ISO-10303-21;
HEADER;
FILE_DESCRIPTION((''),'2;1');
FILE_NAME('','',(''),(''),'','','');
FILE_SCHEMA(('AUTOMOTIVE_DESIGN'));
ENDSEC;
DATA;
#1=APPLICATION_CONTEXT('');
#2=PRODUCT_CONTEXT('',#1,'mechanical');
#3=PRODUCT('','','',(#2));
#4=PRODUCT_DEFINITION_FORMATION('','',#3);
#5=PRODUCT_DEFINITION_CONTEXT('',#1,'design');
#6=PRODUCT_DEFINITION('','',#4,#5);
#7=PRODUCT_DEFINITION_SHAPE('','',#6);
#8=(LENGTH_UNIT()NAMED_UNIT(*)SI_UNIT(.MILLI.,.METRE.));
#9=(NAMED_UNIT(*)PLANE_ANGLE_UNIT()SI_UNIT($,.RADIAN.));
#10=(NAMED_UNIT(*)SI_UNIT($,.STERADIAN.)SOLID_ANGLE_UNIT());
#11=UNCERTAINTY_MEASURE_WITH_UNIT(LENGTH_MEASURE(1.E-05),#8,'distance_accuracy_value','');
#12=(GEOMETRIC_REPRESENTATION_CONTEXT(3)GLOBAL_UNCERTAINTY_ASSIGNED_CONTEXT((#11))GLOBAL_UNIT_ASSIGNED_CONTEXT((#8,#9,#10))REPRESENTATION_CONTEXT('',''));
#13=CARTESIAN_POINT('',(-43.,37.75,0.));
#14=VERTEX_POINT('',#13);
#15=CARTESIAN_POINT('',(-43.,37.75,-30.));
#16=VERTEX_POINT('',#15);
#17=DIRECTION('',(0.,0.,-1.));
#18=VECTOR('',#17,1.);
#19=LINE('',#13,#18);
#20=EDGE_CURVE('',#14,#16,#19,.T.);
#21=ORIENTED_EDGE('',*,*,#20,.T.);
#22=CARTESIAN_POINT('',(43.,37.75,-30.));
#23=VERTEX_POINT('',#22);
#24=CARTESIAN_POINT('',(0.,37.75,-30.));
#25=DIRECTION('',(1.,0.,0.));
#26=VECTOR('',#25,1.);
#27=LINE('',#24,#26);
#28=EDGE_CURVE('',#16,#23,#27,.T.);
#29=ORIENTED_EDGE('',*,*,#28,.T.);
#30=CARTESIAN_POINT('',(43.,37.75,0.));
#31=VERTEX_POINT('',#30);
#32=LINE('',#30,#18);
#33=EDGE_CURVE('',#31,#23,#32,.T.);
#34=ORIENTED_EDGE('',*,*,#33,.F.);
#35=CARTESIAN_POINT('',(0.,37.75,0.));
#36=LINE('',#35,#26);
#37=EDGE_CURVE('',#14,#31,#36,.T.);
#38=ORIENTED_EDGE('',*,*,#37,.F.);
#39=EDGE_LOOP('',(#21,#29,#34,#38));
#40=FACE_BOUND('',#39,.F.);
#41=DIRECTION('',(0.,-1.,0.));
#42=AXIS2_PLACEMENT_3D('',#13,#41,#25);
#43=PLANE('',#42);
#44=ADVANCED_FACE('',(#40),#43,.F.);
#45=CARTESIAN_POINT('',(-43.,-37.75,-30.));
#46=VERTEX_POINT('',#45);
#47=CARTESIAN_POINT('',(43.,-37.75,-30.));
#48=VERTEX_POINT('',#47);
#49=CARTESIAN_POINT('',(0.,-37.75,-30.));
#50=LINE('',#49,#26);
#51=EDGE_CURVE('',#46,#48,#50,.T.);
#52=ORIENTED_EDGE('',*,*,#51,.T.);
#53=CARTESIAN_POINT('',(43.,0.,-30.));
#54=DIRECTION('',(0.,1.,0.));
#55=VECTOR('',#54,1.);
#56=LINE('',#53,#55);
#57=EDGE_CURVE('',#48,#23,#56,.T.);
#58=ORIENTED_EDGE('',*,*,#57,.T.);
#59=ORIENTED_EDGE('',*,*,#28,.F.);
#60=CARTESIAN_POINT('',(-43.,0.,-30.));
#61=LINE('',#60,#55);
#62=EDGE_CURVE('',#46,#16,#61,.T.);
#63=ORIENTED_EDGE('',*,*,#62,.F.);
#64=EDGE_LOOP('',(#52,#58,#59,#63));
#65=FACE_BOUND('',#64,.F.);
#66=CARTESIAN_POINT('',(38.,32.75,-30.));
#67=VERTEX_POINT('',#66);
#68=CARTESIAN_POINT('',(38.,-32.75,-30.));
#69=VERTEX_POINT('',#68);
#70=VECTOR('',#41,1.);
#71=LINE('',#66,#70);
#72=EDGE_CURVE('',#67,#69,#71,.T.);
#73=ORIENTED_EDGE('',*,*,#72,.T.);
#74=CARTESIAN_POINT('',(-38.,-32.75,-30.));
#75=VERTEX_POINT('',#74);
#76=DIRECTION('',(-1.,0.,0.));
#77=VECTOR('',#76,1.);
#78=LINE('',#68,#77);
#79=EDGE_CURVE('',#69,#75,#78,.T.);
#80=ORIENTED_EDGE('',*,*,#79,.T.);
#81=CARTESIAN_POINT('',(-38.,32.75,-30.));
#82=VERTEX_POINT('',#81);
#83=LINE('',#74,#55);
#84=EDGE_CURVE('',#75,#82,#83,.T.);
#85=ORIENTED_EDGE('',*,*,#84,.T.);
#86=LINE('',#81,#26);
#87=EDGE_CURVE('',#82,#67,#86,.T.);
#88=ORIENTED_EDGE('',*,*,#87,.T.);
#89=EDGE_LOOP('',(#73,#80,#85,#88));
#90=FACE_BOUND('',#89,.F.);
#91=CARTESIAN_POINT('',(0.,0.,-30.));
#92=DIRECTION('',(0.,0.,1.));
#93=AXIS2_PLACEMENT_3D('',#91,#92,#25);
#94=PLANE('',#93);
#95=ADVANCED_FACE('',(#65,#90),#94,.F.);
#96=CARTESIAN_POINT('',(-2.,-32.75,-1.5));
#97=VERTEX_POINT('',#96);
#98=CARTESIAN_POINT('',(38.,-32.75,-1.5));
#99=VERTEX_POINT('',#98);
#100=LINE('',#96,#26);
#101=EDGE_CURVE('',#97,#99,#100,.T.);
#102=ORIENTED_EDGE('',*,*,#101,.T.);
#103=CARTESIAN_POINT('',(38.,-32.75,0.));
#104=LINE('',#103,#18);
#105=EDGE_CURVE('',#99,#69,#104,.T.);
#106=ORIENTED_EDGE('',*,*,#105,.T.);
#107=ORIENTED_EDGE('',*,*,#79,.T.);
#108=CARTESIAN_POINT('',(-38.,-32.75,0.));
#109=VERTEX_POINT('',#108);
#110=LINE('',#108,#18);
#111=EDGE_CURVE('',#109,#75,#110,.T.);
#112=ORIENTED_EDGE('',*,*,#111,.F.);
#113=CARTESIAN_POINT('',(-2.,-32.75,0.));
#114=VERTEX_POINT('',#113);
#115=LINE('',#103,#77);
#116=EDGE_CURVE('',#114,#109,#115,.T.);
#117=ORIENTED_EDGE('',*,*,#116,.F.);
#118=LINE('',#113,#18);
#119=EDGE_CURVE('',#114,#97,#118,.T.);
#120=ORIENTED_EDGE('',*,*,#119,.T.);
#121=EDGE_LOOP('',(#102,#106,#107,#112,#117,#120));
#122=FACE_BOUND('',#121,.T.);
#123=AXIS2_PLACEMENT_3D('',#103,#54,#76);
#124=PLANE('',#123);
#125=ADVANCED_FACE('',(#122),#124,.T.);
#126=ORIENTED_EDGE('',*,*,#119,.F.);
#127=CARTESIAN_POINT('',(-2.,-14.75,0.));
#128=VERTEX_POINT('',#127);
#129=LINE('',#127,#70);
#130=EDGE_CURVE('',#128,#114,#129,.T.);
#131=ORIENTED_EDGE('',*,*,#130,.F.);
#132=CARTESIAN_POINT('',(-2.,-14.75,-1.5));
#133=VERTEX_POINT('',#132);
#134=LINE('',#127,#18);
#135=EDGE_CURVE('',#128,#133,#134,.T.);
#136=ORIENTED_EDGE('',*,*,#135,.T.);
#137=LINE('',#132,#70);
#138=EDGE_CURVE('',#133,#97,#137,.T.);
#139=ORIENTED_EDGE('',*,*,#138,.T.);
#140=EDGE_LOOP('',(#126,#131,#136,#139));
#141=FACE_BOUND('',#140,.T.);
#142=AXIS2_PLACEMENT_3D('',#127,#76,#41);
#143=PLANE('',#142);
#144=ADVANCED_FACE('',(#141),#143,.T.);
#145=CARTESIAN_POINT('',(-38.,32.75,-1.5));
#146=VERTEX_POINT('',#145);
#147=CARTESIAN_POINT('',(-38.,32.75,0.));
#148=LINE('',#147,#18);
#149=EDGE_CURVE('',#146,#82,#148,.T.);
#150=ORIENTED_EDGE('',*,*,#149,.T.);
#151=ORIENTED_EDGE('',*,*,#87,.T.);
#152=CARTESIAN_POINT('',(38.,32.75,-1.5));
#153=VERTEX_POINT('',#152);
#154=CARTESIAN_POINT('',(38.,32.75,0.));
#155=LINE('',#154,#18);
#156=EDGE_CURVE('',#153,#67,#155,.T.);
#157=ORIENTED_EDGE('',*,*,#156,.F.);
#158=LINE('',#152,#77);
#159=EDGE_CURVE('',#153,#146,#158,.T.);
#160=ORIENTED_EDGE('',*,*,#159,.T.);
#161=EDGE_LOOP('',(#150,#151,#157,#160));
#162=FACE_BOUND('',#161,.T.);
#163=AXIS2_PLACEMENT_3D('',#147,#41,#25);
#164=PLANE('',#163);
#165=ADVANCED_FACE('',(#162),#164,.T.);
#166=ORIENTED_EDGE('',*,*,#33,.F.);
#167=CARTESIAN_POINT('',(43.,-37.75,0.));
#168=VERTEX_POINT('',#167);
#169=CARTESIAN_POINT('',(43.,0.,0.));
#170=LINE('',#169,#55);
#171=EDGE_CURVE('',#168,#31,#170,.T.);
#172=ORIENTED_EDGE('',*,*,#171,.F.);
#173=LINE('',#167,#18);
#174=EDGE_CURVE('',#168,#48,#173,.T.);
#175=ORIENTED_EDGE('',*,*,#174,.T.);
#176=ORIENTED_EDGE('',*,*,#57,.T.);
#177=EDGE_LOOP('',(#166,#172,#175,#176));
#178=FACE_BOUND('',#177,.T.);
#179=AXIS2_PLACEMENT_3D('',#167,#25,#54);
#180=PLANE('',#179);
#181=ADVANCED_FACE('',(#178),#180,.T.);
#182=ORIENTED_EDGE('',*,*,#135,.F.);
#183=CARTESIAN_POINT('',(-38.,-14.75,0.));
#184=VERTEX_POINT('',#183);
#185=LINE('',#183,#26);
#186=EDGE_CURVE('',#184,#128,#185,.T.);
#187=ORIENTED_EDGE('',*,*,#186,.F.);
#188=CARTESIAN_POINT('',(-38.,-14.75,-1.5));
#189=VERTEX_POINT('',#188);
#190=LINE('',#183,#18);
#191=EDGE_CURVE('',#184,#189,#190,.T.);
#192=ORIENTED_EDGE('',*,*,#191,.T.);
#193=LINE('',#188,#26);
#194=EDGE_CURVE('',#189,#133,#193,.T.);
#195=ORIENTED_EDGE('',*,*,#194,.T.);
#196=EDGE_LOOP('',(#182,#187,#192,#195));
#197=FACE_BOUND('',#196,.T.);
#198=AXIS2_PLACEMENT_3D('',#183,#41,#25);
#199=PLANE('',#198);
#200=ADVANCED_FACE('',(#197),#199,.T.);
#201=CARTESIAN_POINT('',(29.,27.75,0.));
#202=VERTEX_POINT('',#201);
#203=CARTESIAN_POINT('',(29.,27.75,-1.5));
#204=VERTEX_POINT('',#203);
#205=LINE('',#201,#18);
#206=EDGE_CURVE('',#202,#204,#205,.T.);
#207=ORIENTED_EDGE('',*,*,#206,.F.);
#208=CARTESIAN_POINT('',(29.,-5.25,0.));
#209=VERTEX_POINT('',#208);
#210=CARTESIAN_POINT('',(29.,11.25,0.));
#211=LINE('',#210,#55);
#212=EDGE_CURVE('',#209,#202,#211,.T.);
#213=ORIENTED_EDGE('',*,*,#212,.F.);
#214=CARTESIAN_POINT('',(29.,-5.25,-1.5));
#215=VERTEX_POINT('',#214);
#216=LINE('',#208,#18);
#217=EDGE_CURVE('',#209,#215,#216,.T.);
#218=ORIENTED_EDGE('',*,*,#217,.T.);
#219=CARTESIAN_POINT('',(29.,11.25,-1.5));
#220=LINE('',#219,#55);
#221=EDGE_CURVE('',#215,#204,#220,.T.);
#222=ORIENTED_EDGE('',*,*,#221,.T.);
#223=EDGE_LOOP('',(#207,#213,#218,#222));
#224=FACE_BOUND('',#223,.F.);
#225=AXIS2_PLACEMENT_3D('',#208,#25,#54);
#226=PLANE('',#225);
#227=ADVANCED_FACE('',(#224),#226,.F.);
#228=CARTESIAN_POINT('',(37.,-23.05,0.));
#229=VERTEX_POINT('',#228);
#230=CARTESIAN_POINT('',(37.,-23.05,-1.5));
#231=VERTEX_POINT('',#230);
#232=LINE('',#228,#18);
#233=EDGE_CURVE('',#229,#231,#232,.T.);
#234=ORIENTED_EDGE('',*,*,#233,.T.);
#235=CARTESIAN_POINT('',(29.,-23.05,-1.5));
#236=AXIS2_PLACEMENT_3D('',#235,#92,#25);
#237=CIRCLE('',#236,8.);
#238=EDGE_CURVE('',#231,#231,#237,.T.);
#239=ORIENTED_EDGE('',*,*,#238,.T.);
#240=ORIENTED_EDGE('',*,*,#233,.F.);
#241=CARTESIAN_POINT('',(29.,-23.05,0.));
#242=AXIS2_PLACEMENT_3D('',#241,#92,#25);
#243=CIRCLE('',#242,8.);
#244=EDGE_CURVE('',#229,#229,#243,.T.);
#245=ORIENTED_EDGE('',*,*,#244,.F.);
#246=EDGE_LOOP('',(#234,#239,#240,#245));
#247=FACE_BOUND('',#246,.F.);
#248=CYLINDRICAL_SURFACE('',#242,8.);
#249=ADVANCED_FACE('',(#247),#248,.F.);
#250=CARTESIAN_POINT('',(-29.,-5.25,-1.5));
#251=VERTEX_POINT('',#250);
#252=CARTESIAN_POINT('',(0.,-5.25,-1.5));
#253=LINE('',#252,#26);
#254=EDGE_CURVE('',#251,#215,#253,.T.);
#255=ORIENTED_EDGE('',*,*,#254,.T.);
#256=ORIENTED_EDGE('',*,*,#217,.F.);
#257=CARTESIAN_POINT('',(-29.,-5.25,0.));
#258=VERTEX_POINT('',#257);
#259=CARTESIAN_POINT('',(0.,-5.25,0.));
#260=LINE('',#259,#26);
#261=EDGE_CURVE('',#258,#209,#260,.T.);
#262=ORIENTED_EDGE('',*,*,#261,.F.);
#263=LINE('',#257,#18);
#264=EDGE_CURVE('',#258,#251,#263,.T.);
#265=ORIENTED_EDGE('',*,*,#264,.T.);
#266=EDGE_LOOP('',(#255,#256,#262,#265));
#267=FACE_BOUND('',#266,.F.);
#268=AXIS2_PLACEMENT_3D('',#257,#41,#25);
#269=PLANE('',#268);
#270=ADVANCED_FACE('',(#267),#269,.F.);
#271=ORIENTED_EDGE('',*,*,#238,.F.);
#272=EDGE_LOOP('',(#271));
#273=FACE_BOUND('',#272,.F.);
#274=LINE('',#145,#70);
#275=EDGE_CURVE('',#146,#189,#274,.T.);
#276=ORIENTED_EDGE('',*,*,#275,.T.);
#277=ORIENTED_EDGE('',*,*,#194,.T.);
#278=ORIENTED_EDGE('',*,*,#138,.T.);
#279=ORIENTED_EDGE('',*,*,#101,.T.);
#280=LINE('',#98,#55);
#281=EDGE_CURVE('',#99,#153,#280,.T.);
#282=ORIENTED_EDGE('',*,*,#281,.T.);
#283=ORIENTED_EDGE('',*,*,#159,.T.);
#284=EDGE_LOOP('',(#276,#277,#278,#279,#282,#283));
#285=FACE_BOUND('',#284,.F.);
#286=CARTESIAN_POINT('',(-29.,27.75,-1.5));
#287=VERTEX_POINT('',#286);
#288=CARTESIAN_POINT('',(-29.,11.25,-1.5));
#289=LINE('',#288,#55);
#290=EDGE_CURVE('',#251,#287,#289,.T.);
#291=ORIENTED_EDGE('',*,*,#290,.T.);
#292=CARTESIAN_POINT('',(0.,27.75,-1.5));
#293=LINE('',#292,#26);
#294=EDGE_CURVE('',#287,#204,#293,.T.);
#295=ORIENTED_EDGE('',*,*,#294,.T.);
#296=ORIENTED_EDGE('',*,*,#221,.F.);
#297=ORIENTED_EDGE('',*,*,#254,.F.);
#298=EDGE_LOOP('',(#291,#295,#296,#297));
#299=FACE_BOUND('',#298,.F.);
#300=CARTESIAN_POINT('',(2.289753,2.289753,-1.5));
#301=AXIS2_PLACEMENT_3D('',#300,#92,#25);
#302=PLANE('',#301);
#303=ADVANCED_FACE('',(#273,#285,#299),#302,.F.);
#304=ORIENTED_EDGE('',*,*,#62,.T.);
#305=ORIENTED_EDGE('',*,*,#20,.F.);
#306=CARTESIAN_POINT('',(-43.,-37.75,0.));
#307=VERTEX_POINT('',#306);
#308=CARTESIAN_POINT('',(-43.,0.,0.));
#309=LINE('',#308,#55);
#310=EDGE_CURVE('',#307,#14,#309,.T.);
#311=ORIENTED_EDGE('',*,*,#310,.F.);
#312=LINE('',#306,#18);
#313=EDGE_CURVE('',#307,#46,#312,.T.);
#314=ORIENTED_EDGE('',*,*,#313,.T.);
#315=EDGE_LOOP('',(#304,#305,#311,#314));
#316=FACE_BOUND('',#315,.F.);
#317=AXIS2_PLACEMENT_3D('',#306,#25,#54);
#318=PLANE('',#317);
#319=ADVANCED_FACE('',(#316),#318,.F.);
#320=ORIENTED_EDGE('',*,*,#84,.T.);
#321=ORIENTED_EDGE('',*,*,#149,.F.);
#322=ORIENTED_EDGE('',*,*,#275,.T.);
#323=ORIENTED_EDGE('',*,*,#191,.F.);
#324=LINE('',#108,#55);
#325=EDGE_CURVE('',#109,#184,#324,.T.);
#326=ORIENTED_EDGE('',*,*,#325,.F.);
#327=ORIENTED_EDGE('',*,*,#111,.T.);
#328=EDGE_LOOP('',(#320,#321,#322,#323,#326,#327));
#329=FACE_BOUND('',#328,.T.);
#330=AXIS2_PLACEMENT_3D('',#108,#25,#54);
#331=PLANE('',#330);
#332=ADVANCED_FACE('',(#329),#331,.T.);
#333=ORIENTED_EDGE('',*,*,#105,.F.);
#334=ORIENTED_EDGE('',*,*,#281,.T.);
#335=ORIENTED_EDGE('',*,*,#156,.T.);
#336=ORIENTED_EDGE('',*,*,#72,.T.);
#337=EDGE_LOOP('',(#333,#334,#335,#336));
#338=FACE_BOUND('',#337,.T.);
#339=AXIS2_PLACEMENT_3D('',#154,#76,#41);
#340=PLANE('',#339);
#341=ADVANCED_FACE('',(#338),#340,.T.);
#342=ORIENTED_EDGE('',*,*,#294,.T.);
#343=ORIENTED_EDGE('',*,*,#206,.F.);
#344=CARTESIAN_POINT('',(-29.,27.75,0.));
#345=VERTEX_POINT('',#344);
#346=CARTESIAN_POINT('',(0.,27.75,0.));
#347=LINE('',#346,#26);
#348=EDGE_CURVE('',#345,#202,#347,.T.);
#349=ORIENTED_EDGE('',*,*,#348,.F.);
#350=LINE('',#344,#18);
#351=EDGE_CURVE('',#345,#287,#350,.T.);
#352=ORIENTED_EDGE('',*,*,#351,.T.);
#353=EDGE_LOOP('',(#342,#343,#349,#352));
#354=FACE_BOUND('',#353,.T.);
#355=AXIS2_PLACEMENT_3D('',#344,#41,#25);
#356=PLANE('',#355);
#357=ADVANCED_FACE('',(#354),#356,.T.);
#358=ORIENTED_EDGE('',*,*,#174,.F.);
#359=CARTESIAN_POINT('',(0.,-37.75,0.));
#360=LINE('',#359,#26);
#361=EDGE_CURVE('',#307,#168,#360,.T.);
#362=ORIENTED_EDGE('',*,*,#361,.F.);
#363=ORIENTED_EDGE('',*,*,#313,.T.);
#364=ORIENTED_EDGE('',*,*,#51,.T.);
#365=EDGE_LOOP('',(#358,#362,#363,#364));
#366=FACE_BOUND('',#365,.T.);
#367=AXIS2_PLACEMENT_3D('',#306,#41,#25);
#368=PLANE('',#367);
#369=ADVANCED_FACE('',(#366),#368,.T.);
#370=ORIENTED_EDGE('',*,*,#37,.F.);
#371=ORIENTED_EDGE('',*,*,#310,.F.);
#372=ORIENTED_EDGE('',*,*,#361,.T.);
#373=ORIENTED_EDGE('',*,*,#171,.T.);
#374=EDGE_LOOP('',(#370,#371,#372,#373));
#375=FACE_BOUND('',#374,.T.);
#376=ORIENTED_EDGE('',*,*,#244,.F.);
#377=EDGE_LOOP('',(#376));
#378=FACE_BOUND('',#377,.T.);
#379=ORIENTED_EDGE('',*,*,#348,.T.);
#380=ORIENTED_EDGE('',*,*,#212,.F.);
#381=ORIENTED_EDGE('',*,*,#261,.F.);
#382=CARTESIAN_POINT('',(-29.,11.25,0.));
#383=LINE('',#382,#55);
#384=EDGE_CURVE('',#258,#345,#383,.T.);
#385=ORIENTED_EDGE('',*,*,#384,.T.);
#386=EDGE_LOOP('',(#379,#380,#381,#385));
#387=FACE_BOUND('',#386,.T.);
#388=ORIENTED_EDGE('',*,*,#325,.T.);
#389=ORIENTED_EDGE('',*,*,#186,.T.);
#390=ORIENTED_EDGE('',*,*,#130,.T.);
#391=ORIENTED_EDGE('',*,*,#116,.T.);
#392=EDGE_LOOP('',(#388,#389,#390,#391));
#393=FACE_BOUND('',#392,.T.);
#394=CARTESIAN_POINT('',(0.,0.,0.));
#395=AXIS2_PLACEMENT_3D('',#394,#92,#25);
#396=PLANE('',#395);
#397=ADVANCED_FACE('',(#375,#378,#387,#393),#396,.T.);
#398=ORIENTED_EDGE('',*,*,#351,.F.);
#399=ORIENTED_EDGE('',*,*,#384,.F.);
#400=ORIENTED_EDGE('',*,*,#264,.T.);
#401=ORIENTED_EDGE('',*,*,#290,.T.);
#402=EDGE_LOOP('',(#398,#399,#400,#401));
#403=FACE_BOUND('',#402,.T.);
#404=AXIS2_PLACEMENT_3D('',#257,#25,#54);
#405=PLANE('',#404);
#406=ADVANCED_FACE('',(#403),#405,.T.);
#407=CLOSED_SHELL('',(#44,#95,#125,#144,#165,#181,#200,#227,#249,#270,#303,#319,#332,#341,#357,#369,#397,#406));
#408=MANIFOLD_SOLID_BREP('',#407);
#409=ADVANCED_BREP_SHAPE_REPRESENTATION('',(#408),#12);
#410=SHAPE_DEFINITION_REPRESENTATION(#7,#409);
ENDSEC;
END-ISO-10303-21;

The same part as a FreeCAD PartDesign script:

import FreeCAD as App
import Part
import Sketcher

V = App.Vector
Q = App.Units.Quantity

doc = App.newDocument("Part")
params = doc.addObject("Spreadsheet::Sheet", "Params")
for row, (alias, value) in enumerate([
    ("sketch1_diameter", "16 mm"),
    ("sketch1_width", "36 mm"),
    ("sketch1_width2", "40 mm"),
    ("sketch1_width3", "58 mm"),
    ("sketch1_height", "18 mm"),
    ("pad1_length", "1.5 mm"),
    ("sketch2_width", "86 mm"),
    ("sketch2_width2", "76 mm"),
    ("sketch2_height", "75.5 mm"),
    ("sketch2_height2", "65.5 mm"),
    ("pad2_length", "30 mm"),
], start=1):
    params.set(f"A{row}", alias)
    params.set(f"B{row}", "=" + value)
    params.setAlias(f"B{row}", alias)

body = doc.addObject("PartDesign::Body", "Body")

sketch1 = body.newObject("Sketcher::SketchObject", "Sketch")
sketch1.AttachmentSupport = (doc.getObject("XY_Plane"), [""])
sketch1.MapMode = "FlatFace"
sketch1.addGeometry([
    Part.LineSegment(V(-38, 32.75, 0), V(-38, -14.75, 0)),
    Part.LineSegment(V(-38, -14.75, 0), V(-2, -14.75, 0)),
    Part.LineSegment(V(-2, -14.75, 0), V(-2, -32.75, 0)),
    Part.LineSegment(V(-2, -32.75, 0), V(38, -32.75, 0)),
    Part.LineSegment(V(38, -32.75, 0), V(38, 32.75, 0)),
    Part.LineSegment(V(38, 32.75, 0), V(-38, 32.75, 0)),
    Part.Circle(V(29, -23.05, 0), V(0, 0, 1), 8),
    Part.LineSegment(V(29, -5.25, 0), V(-29, -5.25, 0)),
    Part.LineSegment(V(-29, -5.25, 0), V(-29, 27.75, 0)),
    Part.LineSegment(V(-29, 27.75, 0), V(29, 27.75, 0)),
    Part.LineSegment(V(29, 27.75, 0), V(29, -5.25, 0)),
], False)
sketch1.addConstraint([
    Sketcher.Constraint("Coincident", 0, 2, 1, 1),
    Sketcher.Constraint("Coincident", 1, 2, 2, 1),
    Sketcher.Constraint("Coincident", 2, 2, 3, 1),
    Sketcher.Constraint("Coincident", 3, 2, 4, 1),
    Sketcher.Constraint("Coincident", 4, 2, 5, 1),
    Sketcher.Constraint("Coincident", 5, 2, 0, 1),
    Sketcher.Constraint("Coincident", 7, 2, 8, 1),
    Sketcher.Constraint("Coincident", 8, 2, 9, 1),
    Sketcher.Constraint("Coincident", 9, 2, 10, 1),
    Sketcher.Constraint("Coincident", 10, 2, 7, 1),
    Sketcher.Constraint("Vertical", 0),
    Sketcher.Constraint("Horizontal", 1),
    Sketcher.Constraint("Vertical", 2),
    Sketcher.Constraint("Horizontal", 3),
    Sketcher.Constraint("Vertical", 4),
    Sketcher.Constraint("Horizontal", 5),
    Sketcher.Constraint("Horizontal", 7),
    Sketcher.Constraint("Vertical", 8),
    Sketcher.Constraint("Horizontal", 9),
    Sketcher.Constraint("Vertical", 10),
    Sketcher.Constraint("Symmetric", 3, 2, 5, 2, -1, 1),
    Sketcher.Constraint("Vertical", 6, 3, 9, 2),
    Sketcher.Constraint("Diameter", 6, Q("16 mm")),
    Sketcher.Constraint("DistanceX", 1, 1, 1, 2, Q("36 mm")),
    Sketcher.Constraint("DistanceX", 3, 1, 3, 2, Q("40 mm")),
    Sketcher.Constraint("DistanceX", 7, 2, 7, 1, Q("58 mm")),
    Sketcher.Constraint("DistanceY", 2, 2, 2, 1, Q("18 mm")),
    Sketcher.Constraint("DistanceY", 8, 1, 8, 2, Q("33 mm")),
    Sketcher.Constraint("DistanceY", 0, 2, 0, 1, Q("47.5 mm")),
    Sketcher.Constraint("DistanceX", -1, 1, 6, 3, Q("29 mm")),
    Sketcher.Constraint("DistanceY", 7, 2, 5, 2, Q("38 mm")),
    Sketcher.Constraint("DistanceY", 6, 3, 0, 2, Q("8.3 mm")),
])
sketch1.setExpression("Constraints[22]", "Params.sketch1_diameter")
sketch1.setExpression("Constraints[23]", "Params.sketch1_width")
sketch1.setExpression("Constraints[24]", "Params.sketch1_width2")
sketch1.setExpression("Constraints[25]", "Params.sketch1_width3")
sketch1.setExpression("Constraints[26]", "Params.sketch1_height")
pad1 = body.newObject("PartDesign::Pad", "Pad")
pad1.Profile = sketch1
pad1.setExpression("Length", "Params.pad1_length")
pad1.Reversed = True

sketch2 = body.newObject("Sketcher::SketchObject", "Sketch001")
sketch2.AttachmentSupport = (doc.getObject("XY_Plane"), [""])
sketch2.MapMode = "FlatFace"
sketch2.addGeometry([
    Part.LineSegment(V(-43, 37.75, 0), V(-43, -37.75, 0)),
    Part.LineSegment(V(-43, -37.75, 0), V(43, -37.75, 0)),
    Part.LineSegment(V(43, -37.75, 0), V(43, 37.75, 0)),
    Part.LineSegment(V(43, 37.75, 0), V(-43, 37.75, 0)),
    Part.LineSegment(V(-38, -32.75, 0), V(-38, 32.75, 0)),
    Part.LineSegment(V(-38, 32.75, 0), V(38, 32.75, 0)),
    Part.LineSegment(V(38, 32.75, 0), V(38, -32.75, 0)),
    Part.LineSegment(V(38, -32.75, 0), V(-38, -32.75, 0)),
], False)
sketch2.addConstraint([
    Sketcher.Constraint("Coincident", 0, 2, 1, 1),
    Sketcher.Constraint("Coincident", 1, 2, 2, 1),
    Sketcher.Constraint("Coincident", 2, 2, 3, 1),
    Sketcher.Constraint("Coincident", 3, 2, 0, 1),
    Sketcher.Constraint("Coincident", 4, 2, 5, 1),
    Sketcher.Constraint("Coincident", 5, 2, 6, 1),
    Sketcher.Constraint("Coincident", 6, 2, 7, 1),
    Sketcher.Constraint("Coincident", 7, 2, 4, 1),
    Sketcher.Constraint("Vertical", 0),
    Sketcher.Constraint("Horizontal", 1),
    Sketcher.Constraint("Vertical", 2),
    Sketcher.Constraint("Horizontal", 3),
    Sketcher.Constraint("Vertical", 4),
    Sketcher.Constraint("Horizontal", 5),
    Sketcher.Constraint("Vertical", 6),
    Sketcher.Constraint("Horizontal", 7),
    Sketcher.Constraint("Symmetric", 0, 2, 2, 2, -1, 1),
    Sketcher.Constraint("Symmetric", 4, 2, 6, 2, -1, 1),
    Sketcher.Constraint("DistanceX", 1, 1, 1, 2, Q("86 mm")),
    Sketcher.Constraint("DistanceX", 5, 1, 5, 2, Q("76 mm")),
    Sketcher.Constraint("DistanceY", 0, 2, 0, 1, Q("75.5 mm")),
    Sketcher.Constraint("DistanceY", 4, 1, 4, 2, Q("65.5 mm")),
])
sketch2.setExpression("Constraints[18]", "Params.sketch2_width")
sketch2.setExpression("Constraints[19]", "Params.sketch2_width2")
sketch2.setExpression("Constraints[20]", "Params.sketch2_height")
sketch2.setExpression("Constraints[21]", "Params.sketch2_height2")
pad2 = body.newObject("PartDesign::Pad", "Pad001")
pad2.Profile = sketch2
pad2.setExpression("Length", "Params.pad2_length")
pad2.Reversed = True

doc.recompute()
